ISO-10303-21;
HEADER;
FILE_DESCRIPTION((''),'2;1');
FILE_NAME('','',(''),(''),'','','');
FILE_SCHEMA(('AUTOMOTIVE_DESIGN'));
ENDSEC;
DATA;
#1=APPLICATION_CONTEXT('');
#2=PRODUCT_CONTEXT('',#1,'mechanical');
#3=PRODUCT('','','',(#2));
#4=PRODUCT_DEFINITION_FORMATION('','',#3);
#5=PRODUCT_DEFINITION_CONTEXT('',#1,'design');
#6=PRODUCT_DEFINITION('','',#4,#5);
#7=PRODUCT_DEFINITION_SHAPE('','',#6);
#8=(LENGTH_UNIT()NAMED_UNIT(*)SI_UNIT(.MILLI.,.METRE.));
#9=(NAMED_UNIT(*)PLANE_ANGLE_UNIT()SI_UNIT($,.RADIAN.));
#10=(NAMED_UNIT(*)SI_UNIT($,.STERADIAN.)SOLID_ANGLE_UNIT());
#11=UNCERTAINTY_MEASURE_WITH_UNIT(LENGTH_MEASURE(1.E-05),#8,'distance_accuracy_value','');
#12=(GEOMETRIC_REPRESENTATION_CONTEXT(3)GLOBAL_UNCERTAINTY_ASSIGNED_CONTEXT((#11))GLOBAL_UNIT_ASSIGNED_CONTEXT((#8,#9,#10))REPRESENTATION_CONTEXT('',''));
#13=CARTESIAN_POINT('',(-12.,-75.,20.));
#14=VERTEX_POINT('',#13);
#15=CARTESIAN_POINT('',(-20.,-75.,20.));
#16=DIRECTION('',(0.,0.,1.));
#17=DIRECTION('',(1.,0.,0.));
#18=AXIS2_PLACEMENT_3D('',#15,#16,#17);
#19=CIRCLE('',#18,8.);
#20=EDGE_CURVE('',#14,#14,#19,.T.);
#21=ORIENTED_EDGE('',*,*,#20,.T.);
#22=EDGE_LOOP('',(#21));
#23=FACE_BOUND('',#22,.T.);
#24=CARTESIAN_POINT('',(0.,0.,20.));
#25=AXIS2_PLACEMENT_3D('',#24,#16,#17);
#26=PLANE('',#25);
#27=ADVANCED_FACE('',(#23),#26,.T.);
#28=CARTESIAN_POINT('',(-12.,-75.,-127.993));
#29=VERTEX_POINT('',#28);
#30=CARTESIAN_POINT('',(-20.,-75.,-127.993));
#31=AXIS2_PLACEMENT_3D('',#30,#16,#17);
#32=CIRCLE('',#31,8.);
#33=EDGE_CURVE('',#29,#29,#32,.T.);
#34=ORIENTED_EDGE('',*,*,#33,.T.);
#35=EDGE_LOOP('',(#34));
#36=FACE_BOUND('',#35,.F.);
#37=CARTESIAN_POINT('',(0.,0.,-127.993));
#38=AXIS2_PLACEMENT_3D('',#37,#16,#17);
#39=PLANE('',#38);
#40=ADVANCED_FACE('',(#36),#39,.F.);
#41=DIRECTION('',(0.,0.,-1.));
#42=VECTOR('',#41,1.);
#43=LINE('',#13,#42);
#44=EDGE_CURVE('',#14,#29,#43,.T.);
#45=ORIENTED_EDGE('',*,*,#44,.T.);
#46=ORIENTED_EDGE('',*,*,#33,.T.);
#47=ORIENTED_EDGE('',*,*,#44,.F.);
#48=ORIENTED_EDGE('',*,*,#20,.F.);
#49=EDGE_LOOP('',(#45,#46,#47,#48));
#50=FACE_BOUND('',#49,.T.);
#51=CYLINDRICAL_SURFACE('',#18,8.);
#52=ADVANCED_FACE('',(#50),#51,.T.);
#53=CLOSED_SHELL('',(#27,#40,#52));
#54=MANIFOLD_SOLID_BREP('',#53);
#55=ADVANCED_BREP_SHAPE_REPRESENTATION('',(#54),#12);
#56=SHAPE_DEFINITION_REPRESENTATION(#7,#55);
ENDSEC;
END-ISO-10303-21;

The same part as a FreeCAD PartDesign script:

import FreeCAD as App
import Part
import Sketcher

doc = App.newDocument("Part")
body = doc.addObject("PartDesign::Body", "Body")

# Sketch on XY plane
sketch1 = body.newObject("Sketcher::SketchObject", "Sketch")
sketch1.AttachmentSupport = (doc.getObject("XY_Plane"), [""])
sketch1.MapMode = "FlatFace"
sketch1.AttachmentOffset = App.Placement(App.Vector(0, 0, 20), App.Rotation())
sketch1.addGeometry(Part.Circle(App.Vector(-20, -75, 0), App.Vector(0, 0, 1), 8), False)
sketch1.addConstraint(Sketcher.Constraint("Diameter", 0, 16.0))
sketch1.addConstraint(Sketcher.Constraint("DistanceX", 0, 3, -1, 1, 20.0))
sketch1.addConstraint(Sketcher.Constraint("DistanceY", 0, 3, -1, 1, 75.0))
pad1 = body.newObject("PartDesign::Pad", "Pad")
pad1.Profile = sketch1
pad1.Length = 147.993
pad1.Reversed = True

doc.recompute()
